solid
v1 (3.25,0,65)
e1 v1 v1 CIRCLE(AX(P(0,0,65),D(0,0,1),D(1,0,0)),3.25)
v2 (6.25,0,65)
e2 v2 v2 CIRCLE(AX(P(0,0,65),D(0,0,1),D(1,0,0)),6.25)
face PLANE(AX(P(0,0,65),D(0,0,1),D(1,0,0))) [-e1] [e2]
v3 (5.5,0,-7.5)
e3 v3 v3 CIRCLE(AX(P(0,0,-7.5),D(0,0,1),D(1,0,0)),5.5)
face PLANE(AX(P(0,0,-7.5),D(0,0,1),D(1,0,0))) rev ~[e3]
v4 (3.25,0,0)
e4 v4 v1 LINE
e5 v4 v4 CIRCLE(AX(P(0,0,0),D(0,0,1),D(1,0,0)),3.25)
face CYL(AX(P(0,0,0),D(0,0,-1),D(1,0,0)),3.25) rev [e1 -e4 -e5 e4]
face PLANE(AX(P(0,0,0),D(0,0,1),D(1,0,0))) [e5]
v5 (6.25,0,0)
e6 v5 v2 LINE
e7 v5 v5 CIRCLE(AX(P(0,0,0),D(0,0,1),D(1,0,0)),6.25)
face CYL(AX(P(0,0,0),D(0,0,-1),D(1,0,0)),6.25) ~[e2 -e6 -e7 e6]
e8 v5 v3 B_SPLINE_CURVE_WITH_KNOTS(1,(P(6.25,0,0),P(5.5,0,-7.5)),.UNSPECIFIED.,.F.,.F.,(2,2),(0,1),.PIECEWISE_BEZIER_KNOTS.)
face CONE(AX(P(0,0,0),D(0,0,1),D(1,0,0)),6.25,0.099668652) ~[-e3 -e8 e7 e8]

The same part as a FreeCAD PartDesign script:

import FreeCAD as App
import Part
import Sketcher
from FreeCAD import Vector
Q = App.Units.Quantity

doc = App.newDocument("Part")
body = doc.addObject("PartDesign::Body", "Body")

sketch1 = body.newObject("Sketcher::SketchObject", "Sketch")
sketch1.AttachmentSupport = (doc.getObject("XY_Plane"), [""])
sketch1.MapMode = "FlatFace"
sketch1.addGeometry(Part.Circle(Vector(0, 0, 0), Vector(0, 0, 1), 6), False)
sketch1.addConstraint([
    Sketcher.Constraint("Coincident", 0, 3, -1, 1),
    Sketcher.Constraint("Diameter", 0, Q("12.5 mm")),
])

sketch2 = body.newObject("Sketcher::SketchObject", "Sketch001")
sketch2.AttachmentSupport = (doc.getObject("XY_Plane"), [""])
sketch2.MapMode = "FlatFace"
sketch2.AttachmentOffset = App.Placement(Vector(0, 0, -7.5), App.Rotation())
sketch2.addGeometry(Part.Circle(Vector(0, 0, 0), Vector(0, 0, 1), 6), False)
sketch2.addConstraint([
    Sketcher.Constraint("Coincident", 0, 3, -1, 1),
    Sketcher.Constraint("Diameter", 0, Q("11 mm")),
])

additiveloft = body.newObject("PartDesign::AdditiveLoft", "AdditiveLoft")
additiveloft.Profile = sketch1
additiveloft.Sections = [sketch2]

sketch3 = body.newObject("Sketcher::SketchObject", "Sketch002")
sketch3.AttachmentSupport = (doc.getObject("XY_Plane"), [""])
sketch3.MapMode = "FlatFace"
sketch3.addGeometry(Part.Circle(Vector(0, 0, 0), Vector(0, 0, 1), 6), False)
sketch3.addConstraint([
    Sketcher.Constraint("Coincident", 0, 3, -1, 1),
    Sketcher.Constraint("Diameter", 0, Q("12.5 mm")),
])
pad1 = body.newObject("PartDesign::Pad", "Pad")
pad1.Profile = sketch3
pad1.Length = 65

sketch4 = body.newObject("Sketcher::SketchObject", "Sketch003")
sketch4.AttachmentSupport = (doc.getObject("XY_Plane"), [""])
sketch4.MapMode = "FlatFace"
sketch4.addGeometry(Part.Circle(Vector(0, 0, 0), Vector(0, 0, 1), 3.2), False)
sketch4.addConstraint([
    Sketcher.Constraint("Coincident", 0, 3, -1, 1),
    Sketcher.Constraint("Diameter", 0, Q("6.5 mm")),
])
pocket1 = body.newObject("PartDesign::Pocket", "Pocket")
pocket1.Profile = sketch4
pocket1.Length = 65
pocket1.Reversed = True

doc.recompute()
